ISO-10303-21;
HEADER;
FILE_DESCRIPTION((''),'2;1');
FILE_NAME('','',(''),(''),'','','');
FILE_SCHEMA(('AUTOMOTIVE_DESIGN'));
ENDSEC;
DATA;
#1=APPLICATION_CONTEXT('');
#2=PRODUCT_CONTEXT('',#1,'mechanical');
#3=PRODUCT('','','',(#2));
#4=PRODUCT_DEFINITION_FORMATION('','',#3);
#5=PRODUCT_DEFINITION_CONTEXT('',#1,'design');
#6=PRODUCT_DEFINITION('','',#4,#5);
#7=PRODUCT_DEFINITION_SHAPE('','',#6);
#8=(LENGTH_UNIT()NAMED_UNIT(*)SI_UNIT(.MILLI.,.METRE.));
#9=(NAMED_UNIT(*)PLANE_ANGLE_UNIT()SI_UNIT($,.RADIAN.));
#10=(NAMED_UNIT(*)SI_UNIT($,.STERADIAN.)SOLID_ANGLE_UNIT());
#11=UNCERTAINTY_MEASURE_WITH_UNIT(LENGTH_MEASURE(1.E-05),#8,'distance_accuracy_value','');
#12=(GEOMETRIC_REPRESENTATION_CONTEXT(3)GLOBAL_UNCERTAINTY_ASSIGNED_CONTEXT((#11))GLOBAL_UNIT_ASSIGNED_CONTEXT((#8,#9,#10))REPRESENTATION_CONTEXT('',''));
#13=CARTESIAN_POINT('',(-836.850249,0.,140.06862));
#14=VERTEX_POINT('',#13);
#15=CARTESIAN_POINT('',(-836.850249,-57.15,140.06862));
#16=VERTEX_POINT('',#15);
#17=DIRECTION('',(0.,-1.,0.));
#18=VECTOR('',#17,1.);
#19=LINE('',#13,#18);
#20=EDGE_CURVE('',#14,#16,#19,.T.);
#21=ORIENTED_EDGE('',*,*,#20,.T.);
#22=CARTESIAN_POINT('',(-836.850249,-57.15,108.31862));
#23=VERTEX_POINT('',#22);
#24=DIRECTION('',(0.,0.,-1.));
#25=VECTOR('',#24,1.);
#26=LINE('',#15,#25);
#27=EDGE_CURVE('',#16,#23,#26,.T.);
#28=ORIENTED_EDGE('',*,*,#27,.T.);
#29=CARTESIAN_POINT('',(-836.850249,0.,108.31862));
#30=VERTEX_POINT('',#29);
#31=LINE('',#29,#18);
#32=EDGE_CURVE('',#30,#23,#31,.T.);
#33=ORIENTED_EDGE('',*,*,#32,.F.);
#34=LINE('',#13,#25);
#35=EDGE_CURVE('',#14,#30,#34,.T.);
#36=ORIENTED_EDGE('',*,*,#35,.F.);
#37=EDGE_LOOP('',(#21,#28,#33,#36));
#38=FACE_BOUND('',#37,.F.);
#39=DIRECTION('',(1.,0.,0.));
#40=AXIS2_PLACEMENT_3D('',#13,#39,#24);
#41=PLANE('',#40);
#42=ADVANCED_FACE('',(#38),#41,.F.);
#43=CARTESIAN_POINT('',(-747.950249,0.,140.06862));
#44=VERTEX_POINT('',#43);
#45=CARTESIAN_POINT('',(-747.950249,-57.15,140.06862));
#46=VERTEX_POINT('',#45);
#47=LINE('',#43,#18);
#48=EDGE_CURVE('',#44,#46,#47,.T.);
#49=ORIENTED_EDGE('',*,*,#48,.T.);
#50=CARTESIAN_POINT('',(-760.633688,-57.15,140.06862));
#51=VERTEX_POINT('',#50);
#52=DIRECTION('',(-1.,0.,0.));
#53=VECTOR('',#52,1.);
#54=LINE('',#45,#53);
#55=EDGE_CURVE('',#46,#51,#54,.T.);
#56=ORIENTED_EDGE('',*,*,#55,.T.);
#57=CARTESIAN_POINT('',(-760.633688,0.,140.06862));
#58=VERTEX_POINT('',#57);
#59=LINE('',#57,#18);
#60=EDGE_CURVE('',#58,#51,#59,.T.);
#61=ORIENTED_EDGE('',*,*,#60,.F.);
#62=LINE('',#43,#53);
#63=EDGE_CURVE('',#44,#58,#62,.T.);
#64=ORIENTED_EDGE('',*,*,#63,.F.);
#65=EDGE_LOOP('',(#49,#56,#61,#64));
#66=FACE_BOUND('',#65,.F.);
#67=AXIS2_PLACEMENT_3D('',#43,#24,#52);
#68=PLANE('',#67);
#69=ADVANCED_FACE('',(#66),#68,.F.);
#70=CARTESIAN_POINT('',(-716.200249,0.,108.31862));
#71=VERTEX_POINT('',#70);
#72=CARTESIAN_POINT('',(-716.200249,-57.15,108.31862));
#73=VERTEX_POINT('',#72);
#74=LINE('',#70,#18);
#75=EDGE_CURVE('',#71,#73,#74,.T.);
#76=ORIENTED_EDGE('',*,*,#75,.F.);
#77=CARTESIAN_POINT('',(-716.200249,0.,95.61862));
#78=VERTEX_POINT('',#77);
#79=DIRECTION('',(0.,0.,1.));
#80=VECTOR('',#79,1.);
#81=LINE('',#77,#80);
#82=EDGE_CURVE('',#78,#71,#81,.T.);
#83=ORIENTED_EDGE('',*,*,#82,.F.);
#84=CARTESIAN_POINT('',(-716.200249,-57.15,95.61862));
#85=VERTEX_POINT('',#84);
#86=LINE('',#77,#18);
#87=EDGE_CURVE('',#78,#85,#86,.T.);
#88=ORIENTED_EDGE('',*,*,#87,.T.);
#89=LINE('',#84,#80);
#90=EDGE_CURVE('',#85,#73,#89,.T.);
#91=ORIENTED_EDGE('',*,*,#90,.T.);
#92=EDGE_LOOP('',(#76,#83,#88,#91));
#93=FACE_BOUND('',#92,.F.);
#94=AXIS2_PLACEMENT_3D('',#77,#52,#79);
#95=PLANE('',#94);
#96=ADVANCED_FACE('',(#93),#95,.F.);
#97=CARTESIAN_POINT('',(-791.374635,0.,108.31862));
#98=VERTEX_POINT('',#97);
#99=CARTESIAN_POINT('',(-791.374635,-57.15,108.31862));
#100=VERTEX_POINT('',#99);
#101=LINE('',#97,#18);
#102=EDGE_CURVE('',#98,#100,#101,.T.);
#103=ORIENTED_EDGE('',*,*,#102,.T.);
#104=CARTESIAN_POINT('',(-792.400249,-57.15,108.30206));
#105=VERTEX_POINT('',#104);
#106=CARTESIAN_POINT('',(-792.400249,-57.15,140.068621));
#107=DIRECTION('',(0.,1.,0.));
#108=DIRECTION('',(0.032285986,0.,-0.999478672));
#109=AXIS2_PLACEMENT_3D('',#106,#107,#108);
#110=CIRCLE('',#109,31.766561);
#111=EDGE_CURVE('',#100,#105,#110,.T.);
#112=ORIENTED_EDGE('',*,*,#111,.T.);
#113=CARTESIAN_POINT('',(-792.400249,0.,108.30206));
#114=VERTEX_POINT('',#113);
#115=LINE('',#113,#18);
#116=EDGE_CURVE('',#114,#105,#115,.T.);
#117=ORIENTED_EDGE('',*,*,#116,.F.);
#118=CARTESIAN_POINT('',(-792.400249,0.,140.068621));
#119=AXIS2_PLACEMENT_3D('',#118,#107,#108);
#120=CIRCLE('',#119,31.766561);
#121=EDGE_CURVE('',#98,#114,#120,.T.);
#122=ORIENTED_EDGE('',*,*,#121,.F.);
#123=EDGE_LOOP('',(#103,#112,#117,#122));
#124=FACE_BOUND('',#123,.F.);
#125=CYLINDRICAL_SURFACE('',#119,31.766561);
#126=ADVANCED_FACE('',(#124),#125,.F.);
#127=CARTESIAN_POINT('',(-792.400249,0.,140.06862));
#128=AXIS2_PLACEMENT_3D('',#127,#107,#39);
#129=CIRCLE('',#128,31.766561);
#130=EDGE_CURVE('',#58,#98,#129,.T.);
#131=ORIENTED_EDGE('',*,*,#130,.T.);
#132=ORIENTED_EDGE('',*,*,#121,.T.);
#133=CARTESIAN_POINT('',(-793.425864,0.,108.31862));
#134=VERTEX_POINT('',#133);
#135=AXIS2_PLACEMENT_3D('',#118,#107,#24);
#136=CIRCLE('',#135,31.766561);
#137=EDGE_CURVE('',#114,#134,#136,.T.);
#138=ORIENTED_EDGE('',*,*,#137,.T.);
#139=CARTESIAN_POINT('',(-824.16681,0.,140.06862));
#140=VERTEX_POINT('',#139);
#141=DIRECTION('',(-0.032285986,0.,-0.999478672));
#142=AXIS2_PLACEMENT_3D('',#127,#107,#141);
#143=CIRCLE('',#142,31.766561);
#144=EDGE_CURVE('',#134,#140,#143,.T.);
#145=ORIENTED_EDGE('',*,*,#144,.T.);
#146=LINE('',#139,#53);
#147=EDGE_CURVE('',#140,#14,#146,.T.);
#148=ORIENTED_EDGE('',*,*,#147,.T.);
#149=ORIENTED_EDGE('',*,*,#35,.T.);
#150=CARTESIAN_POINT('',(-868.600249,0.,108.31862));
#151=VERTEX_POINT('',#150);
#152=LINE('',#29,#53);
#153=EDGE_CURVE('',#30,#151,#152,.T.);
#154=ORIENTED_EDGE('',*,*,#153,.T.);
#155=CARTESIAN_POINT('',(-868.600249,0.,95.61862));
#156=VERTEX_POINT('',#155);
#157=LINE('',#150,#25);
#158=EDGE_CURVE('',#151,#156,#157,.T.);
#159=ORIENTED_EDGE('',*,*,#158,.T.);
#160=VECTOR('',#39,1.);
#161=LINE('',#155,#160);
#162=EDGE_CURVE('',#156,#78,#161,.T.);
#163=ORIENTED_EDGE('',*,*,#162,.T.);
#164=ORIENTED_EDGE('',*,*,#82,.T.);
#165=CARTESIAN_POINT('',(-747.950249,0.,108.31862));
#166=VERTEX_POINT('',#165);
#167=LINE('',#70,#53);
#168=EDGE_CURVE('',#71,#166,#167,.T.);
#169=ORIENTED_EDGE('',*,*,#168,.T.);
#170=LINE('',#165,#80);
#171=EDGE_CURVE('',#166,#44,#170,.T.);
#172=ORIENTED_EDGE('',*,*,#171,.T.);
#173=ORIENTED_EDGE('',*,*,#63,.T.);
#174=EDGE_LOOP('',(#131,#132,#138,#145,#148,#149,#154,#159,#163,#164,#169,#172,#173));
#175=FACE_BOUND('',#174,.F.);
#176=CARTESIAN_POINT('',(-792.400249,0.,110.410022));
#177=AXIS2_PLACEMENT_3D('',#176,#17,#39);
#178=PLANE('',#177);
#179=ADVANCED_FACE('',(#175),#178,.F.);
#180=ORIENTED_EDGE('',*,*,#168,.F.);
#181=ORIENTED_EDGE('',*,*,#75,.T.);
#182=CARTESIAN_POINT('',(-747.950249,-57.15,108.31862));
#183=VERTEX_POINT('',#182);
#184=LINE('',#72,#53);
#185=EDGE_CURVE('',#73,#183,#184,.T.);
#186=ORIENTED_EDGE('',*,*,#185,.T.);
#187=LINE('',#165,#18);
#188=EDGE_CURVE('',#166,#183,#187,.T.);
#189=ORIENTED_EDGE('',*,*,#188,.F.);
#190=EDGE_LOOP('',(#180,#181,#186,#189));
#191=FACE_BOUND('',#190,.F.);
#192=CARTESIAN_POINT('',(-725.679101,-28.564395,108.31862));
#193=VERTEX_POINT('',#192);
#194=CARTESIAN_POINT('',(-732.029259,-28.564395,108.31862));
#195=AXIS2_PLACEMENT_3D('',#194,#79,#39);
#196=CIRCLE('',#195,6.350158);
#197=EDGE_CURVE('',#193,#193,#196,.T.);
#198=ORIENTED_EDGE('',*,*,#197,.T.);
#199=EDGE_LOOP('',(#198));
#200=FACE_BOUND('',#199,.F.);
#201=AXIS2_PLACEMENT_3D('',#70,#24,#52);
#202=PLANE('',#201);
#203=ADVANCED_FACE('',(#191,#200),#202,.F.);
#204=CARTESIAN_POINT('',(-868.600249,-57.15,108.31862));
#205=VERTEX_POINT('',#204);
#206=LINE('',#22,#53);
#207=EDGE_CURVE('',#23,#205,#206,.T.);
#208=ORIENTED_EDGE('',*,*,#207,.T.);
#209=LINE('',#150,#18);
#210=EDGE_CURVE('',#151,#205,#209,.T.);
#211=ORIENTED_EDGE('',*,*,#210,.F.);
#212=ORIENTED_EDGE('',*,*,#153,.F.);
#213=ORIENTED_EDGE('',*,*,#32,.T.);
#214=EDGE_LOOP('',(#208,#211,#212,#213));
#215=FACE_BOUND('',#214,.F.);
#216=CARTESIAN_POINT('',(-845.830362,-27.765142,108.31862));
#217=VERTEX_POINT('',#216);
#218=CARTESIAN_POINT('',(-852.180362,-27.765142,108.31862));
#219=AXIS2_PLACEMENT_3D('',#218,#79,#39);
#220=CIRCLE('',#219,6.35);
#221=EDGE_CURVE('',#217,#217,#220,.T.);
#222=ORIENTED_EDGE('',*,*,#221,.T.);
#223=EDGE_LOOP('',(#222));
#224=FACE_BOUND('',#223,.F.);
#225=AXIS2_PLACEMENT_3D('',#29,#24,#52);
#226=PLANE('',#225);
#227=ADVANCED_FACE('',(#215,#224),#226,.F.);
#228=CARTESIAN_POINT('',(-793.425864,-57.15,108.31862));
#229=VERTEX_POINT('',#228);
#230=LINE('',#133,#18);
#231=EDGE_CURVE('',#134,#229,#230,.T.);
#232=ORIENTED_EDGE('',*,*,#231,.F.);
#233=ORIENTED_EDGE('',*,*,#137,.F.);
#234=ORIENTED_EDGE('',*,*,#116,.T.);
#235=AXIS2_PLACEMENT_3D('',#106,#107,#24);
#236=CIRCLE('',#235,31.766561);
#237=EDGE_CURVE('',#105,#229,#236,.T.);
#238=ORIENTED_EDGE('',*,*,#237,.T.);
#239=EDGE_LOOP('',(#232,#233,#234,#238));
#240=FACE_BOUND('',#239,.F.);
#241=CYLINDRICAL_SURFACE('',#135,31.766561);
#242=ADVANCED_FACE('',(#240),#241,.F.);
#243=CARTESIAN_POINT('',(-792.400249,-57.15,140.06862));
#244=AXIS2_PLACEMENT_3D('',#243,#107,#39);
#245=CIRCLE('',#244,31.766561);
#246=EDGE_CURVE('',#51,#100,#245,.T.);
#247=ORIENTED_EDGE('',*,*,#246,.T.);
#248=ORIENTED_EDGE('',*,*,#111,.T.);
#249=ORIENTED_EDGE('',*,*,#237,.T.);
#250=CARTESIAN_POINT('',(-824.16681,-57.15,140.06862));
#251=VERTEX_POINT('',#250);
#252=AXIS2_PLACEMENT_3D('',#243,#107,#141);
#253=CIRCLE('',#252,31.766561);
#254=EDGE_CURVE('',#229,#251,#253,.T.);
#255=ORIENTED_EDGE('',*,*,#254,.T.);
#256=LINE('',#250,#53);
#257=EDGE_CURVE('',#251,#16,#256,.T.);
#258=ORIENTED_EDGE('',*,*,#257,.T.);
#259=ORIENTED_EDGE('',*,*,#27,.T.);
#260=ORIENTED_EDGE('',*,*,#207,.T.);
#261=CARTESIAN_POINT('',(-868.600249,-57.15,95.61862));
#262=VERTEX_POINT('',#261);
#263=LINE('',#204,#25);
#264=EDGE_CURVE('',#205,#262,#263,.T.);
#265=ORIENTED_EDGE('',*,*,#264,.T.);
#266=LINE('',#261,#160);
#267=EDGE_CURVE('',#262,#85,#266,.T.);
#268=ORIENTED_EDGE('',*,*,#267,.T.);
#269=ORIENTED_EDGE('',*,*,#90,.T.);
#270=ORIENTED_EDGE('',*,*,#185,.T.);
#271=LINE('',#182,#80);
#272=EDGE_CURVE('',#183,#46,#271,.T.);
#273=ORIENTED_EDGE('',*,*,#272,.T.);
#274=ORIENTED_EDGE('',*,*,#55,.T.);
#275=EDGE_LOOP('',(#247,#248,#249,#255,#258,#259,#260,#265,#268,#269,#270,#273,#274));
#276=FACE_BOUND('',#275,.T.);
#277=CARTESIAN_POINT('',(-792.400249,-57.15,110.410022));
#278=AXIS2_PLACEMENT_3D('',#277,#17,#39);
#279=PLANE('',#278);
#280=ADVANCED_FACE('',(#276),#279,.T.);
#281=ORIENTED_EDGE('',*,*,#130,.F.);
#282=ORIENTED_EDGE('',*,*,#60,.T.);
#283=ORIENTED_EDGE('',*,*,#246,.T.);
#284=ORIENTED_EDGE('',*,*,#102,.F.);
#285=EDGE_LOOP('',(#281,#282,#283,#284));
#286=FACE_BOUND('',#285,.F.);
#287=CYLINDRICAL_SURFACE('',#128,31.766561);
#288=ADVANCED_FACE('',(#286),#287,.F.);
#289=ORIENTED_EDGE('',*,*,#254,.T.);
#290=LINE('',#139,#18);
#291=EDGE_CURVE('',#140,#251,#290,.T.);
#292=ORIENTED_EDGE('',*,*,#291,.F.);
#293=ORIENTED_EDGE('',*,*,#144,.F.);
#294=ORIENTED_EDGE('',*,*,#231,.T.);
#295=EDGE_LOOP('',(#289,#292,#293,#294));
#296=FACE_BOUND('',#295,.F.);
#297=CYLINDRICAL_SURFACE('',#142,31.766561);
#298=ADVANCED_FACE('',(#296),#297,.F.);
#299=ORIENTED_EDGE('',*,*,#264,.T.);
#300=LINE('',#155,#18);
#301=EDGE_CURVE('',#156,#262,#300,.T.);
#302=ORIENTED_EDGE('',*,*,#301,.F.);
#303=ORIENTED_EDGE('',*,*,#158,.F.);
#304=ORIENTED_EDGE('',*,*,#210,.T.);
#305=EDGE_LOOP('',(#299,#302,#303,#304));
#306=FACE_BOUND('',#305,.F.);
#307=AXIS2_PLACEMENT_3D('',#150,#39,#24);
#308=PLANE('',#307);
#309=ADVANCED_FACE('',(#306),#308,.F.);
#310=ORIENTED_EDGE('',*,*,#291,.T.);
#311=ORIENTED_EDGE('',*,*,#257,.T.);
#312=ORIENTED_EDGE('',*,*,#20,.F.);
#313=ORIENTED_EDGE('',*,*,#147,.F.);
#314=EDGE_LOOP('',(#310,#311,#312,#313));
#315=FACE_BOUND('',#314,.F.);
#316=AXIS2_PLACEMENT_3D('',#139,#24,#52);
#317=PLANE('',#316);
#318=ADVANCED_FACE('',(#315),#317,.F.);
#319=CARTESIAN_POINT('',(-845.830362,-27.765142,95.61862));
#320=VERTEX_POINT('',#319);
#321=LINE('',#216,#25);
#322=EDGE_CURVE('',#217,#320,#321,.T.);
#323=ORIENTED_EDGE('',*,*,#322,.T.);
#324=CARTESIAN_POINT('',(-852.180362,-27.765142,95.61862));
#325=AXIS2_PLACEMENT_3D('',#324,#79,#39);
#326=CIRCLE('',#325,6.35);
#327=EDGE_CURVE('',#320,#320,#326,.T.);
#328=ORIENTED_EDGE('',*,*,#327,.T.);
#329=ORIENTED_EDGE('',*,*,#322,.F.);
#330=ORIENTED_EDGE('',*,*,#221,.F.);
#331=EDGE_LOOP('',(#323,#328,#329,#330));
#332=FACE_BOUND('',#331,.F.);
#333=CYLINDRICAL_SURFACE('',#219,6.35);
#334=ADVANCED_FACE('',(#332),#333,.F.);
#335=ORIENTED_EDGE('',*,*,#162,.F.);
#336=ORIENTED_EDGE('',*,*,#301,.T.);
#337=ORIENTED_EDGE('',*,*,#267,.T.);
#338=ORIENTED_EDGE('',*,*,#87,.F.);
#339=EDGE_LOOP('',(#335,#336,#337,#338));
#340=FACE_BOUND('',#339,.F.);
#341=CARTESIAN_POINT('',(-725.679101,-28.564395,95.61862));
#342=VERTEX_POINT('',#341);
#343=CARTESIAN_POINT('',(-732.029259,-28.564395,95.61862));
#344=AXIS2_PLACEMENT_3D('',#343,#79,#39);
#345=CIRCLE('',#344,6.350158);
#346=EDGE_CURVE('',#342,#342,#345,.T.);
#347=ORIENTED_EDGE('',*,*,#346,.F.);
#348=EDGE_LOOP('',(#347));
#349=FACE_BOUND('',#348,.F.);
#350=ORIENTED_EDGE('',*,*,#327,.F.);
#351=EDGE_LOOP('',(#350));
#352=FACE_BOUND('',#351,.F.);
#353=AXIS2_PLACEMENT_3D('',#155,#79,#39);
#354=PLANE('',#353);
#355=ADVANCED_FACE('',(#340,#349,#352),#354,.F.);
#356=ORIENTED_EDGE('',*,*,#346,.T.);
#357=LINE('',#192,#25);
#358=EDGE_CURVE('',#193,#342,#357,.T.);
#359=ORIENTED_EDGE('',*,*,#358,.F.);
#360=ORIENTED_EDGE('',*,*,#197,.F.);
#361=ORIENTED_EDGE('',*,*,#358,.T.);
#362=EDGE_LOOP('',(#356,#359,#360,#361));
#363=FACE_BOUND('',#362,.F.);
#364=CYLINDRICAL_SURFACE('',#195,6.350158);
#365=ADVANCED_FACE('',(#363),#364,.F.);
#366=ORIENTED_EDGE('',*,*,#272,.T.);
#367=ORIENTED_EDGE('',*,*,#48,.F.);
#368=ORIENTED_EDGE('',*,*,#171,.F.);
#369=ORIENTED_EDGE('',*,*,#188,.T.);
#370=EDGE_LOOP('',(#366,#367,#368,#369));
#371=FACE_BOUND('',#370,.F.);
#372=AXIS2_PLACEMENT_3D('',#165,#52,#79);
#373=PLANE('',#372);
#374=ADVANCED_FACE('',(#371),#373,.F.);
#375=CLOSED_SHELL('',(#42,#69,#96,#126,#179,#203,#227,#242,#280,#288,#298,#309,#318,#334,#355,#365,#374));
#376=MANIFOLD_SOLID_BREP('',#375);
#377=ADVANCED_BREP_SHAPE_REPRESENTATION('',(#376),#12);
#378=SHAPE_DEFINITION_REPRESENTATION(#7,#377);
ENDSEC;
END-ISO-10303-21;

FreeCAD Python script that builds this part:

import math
import FreeCAD as App
import Part
import Sketcher
from FreeCAD import Vector
Q = App.Units.Quantity

doc = App.newDocument("Part")
params = doc.addObject("Spreadsheet::Sheet", "Params")
for row, (alias, value) in enumerate([
    ("sketch1_width", "6 in"),
    ("sketch1_height", "0.5 in"),
    ("sketch1_width2", "1.25 in"),
    ("pad1_length", "2.25 in"),
    ("sketch2_diameter", "0.5 in"),
    ("pocket1_length", "0.5 in"),
    ("pocket2_length", "0.5 in"),
], start=1):
    params.set(f"A{row}", alias)
    params.set(f"B{row}", "=" + value)
    params.setAlias(f"B{row}", alias)

body = doc.addObject("PartDesign::Body", "Body")

# Sketch on XZ plane
sketch1 = body.newObject("Sketcher::SketchObject", "Sketch")
sketch1.AttachmentSupport = (doc.getObject("XZ_Plane"), [""])
sketch1.MapMode = "FlatFace"
sketch1.addGeometry([
    Part.LineSegment(Vector(-836.9, 108.3, 0), Vector(-868.6, 108.3, 0)),  # 0
    Part.LineSegment(Vector(-868.6, 108.3, 0), Vector(-868.6, 95.6, 0)),  # 1
    Part.LineSegment(Vector(-868.6, 95.6, 0), Vector(-716.2, 95.6, 0)),  # 2
    Part.LineSegment(Vector(-716.2, 95.6, 0), Vector(-716.2, 108.3, 0)),  # 3
    Part.LineSegment(Vector(-716.2, 108.3, 0), Vector(-748, 108.3, 0)),  # 4
    Part.LineSegment(Vector(-748, 108.3, 0), Vector(-748, 140.1, 0)),  # 5
    Part.LineSegment(Vector(-748, 140.1, 0), Vector(-760.6, 140.1, 0)),  # 6
    Part.ArcOfCircle(Part.Circle(Vector(-792.4, 140.1, 0), Vector(0, 0, 1), 31.8), math.radians(-88), math.radians(0)),  # 7
    Part.ArcOfCircle(Part.Circle(Vector(-792.4, 140.1, 0), Vector(0, 0, 1), 31.8), math.radians(-90), math.radians(-88.15)),  # 8
    Part.ArcOfCircle(Part.Circle(Vector(-792.4, 140.1, 0), Vector(0, 0, 1), 31.8), math.radians(-91.85), math.radians(-90)),  # 9
    Part.ArcOfCircle(Part.Circle(Vector(-792.4, 140.1, 0), Vector(0, 0, 1), 31.8), math.radians(180), math.radians(268)),  # 10
    Part.LineSegment(Vector(-824.2, 140.1, 0), Vector(-836.9, 140.1, 0)),  # 11
    Part.LineSegment(Vector(-836.9, 140.1, 0), Vector(-836.9, 108.3, 0)),  # 12
], False)
sketch1.addConstraint([
    Sketcher.Constraint("Coincident", 0, 2, 1, 1),
    Sketcher.Constraint("Coincident", 1, 2, 2, 1),
    Sketcher.Constraint("Coincident", 2, 2, 3, 1),
    Sketcher.Constraint("Coincident", 3, 2, 4, 1),
    Sketcher.Constraint("Coincident", 4, 2, 5, 1),
    Sketcher.Constraint("Coincident", 5, 2, 6, 1),
    Sketcher.Constraint("Coincident", 6, 2, 7, 2),
    Sketcher.Constraint("Tangent", 7, 1, 8, 2),
    Sketcher.Constraint("Tangent", 8, 1, 9, 2),
    Sketcher.Constraint("Tangent", 9, 1, 10, 2),
    Sketcher.Constraint("Coincident", 10, 1, 11, 1),
    Sketcher.Constraint("Coincident", 11, 2, 12, 1),
    Sketcher.Constraint("Coincident", 12, 2, 0, 1),
    Sketcher.Constraint("Horizontal", 0),
    Sketcher.Constraint("Vertical", 1),
    Sketcher.Constraint("Horizontal", 2),
    Sketcher.Constraint("Vertical", 3),
    Sketcher.Constraint("Horizontal", 4),
    Sketcher.Constraint("Vertical", 5),
    Sketcher.Constraint("Horizontal", 6),
    Sketcher.Constraint("Horizontal", 11),
    Sketcher.Constraint("Vertical", 12),
    Sketcher.Constraint("Coincident", 9, 3, 7, 3),
    Sketcher.Constraint("Equal", 9, 10),
    Sketcher.Constraint("Horizontal", 0, 2, 3, 2),
    Sketcher.Constraint("Horizontal", 10, 3, 5, 2),
    Sketcher.Constraint("Horizontal", 4, 2, 7, 1),
    Sketcher.Constraint("Horizontal", 7, 1, 9, 1),
    Sketcher.Constraint("Horizontal", 6, 2, 10, 1),
    Sketcher.Constraint("Vertical", 10, 3, 8, 1),
    Sketcher.Constraint("Equal", 0, 4),
    Sketcher.Constraint("Equal", 6, 11),
    Sketcher.Constraint("Equal", 4, 5),
    Sketcher.Constraint("DistanceX", 2, 1, 2, 2, Q("6 in")),
    Sketcher.Constraint("DistanceY", 1, 2, 1, 1, Q("0.5 in")),
    Sketcher.Constraint("DistanceX", 0, 2, 0, 1, Q("1.25 in")),
    Sketcher.Constraint("Radius", 7, 31.766561),
    Sketcher.Constraint("DistanceX", 7, 3, -1, 1, 792.400249),
    Sketcher.Constraint("DistanceY", -1, 1, 7, 3, 140.06862),
])
sketch1.setExpression("Constraints[33]", "Params.sketch1_width")
sketch1.setExpression("Constraints[34]", "Params.sketch1_height")
sketch1.setExpression("Constraints[35]", "Params.sketch1_width2")
pad1 = body.newObject("PartDesign::Pad", "Pad")
pad1.Profile = sketch1
pad1.setExpression("Length", "Params.pad1_length")

# Sketch on XY plane
sketch2 = body.newObject("Sketcher::SketchObject", "Sketch001")
sketch2.AttachmentSupport = (doc.getObject("XY_Plane"), [""])
sketch2.MapMode = "FlatFace"
sketch2.AttachmentOffset = App.Placement(Vector(0, 0, 108.31862), App.Rotation())
sketch2.addGeometry(Part.Circle(Vector(-852, -28, 0), Vector(0, 0, 1), 6), False)
sketch2.addConstraint([
    Sketcher.Constraint("Diameter", 0, Q("0.5 in")),
    Sketcher.Constraint("DistanceX", 0, 3, -1, 1, 852.180362),
    Sketcher.Constraint("DistanceY", 0, 3, -1, 1, 27.765142),
])
sketch2.setExpression("Constraints[0]", "Params.sketch2_diameter")
pocket1 = body.newObject("PartDesign::Pocket", "Pocket")
pocket1.Profile = sketch2
pocket1.setExpression("Length", "Params.pocket1_length")

# Sketch on XY plane
sketch3 = body.newObject("Sketcher::SketchObject", "Sketch002")
sketch3.AttachmentSupport = (doc.getObject("XY_Plane"), [""])
sketch3.MapMode = "FlatFace"
sketch3.AttachmentOffset = App.Placement(Vector(0, 0, 108.31862), App.Rotation())
sketch3.addGeometry(Part.Circle(Vector(-732, -29, 0), Vector(0, 0, 1), 6), False)
sketch3.addConstraint([
    Sketcher.Constraint("Diameter", 0, 12.700315),
    Sketcher.Constraint("DistanceX", 0, 3, -1, 1, 732.029259),
    Sketcher.Constraint("DistanceY", 0, 3, -1, 1, 28.564395),
])
pocket2 = body.newObject("PartDesign::Pocket", "Pocket001")
pocket2.Profile = sketch3
pocket2.setExpression("Length", "Params.pocket2_length")

doc.recompute()
